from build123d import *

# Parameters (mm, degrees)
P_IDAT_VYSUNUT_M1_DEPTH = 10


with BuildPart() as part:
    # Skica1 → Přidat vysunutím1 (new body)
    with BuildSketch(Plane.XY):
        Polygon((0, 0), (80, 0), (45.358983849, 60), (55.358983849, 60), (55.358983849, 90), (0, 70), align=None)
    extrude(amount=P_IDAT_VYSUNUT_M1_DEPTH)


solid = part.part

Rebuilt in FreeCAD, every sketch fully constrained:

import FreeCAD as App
import Part
import Sketcher

V = App.Vector
Q = App.Units.Quantity

doc = App.newDocument("Part")
body = doc.addObject("PartDesign::Body", "Body")

# Sketch on XY plane
sketch1 = body.newObject("Sketcher::SketchObject", "Sketch")
sketch1.AttachmentSupport = (doc.getObject("XY_Plane"), [""])
sketch1.MapMode = "FlatFace"
sketch1.addGeometry([
    Part.LineSegment(V(0, 0, 0), V(80, 0, 0)),  # 0
    Part.LineSegment(V(80, 0, 0), V(45, 60, 0)),  # 1
    Part.LineSegment(V(45, 60, 0), V(55, 60, 0)),  # 2
    Part.LineSegment(V(55, 60, 0), V(55, 90, 0)),  # 3
    Part.LineSegment(V(55, 90, 0), V(0, 70, 0)),  # 4
    Part.LineSegment(V(0, 70, 0), V(0, 0, 0)),  # 5
], False)
sketch1.addConstraint([
    Sketcher.Constraint("Coincident", 0, 2, 1, 1),
    Sketcher.Constraint("Coincident", 1, 2, 2, 1),
    Sketcher.Constraint("Coincident", 2, 2, 3, 1),
    Sketcher.Constraint("Coincident", 3, 2, 4, 1),
    Sketcher.Constraint("Coincident", 4, 2, 5, 1),
    Sketcher.Constraint("Coincident", 5, 2, 0, 1),
    Sketcher.Constraint("Horizontal", 0),
    Sketcher.Constraint("Horizontal", 2),
    Sketcher.Constraint("Vertical", 3),
    Sketcher.Constraint("Vertical", 5),
    Sketcher.Constraint("Coincident", 5, 2, -1, 1),
    Sketcher.Constraint("DistanceX", 0, 1, 0, 2, Q("80 mm")),
    Sketcher.Constraint("DistanceX", 2, 1, 2, 2, Q("10 mm")),
    Sketcher.Constraint("DistanceY", 3, 1, 3, 2, Q("30 mm")),
    Sketcher.Constraint("DistanceY", 5, 2, 5, 1, Q("70 mm")),
    Sketcher.Constraint("Angle", 1, Q("120 deg")),
    Sketcher.Constraint("DistanceY", -1, 1, 1, 2, Q("60 mm")),
])
pad1 = body.newObject("PartDesign::Pad", "Pad")
pad1.Profile = sketch1
pad1.Length = 10

doc.recompute()
